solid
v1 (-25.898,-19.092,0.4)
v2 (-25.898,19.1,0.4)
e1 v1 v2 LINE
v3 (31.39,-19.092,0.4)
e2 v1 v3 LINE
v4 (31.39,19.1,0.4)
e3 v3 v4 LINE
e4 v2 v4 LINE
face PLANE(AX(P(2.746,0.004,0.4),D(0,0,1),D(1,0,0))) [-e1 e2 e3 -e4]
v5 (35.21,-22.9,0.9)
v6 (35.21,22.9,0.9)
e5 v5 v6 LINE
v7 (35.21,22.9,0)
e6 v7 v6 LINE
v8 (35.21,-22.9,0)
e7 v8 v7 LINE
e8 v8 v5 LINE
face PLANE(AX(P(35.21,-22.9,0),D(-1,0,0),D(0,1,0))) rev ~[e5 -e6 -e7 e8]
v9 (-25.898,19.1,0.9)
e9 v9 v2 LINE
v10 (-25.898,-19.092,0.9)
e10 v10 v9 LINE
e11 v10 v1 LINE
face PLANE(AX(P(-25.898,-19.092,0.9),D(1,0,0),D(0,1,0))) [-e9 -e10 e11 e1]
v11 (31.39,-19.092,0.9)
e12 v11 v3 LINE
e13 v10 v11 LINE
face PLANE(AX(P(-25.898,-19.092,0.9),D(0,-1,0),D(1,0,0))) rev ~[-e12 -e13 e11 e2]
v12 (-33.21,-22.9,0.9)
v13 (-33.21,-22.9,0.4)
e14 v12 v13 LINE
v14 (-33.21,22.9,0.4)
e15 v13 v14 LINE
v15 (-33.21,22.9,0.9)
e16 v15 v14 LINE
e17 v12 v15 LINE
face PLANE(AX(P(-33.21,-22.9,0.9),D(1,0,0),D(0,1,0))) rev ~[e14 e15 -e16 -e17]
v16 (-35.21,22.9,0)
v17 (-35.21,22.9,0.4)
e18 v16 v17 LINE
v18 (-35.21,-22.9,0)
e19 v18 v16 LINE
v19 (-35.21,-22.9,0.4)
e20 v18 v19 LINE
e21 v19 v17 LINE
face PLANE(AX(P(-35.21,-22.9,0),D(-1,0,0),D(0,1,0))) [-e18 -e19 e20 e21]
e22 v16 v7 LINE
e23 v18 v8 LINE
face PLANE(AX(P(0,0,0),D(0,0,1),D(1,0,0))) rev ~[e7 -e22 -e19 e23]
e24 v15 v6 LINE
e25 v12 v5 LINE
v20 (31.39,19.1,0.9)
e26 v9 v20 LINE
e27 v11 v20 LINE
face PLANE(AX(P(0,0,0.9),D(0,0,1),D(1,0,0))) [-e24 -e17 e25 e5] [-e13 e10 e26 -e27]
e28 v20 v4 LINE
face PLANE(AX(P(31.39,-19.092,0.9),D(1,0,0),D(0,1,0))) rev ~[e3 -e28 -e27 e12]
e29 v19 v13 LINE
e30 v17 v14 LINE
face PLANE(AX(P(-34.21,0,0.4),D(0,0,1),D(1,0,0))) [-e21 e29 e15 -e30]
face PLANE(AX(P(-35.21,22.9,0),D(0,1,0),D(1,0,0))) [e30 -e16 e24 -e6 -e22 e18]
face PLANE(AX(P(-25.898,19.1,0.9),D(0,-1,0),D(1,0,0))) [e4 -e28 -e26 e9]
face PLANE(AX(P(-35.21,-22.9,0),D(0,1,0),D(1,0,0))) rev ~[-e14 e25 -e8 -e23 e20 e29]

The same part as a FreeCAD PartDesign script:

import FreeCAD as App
import Part
import Sketcher
from FreeCAD import Vector
Q = App.Units.Quantity


def add_polygon(sketch, points):
    """Adds a closed chain of lines whose ends are joined by coincident constraints."""
    first, n = sketch.GeometryCount, len(points)
    for a, b in zip(points, points[1:] + points[:1]):
        sketch.addGeometry(Part.LineSegment(App.Vector(*a, 0), App.Vector(*b, 0)), False)
    for i in range(n):
        sketch.addConstraint(Sketcher.Constraint("Coincident", first + i, 2, first + (i + 1) % n, 1))

doc = App.newDocument("Part")
body = doc.addObject("PartDesign::Body", "Body")

sketch1 = doc.addObject("Sketcher::SketchObject", "Sketch")
body.addObject(sketch1)
sketch1.AttachmentSupport = (doc.XY_Plane, [""])
sketch1.MapMode = "FlatFace"
add_polygon(sketch1, [(-35, 23), (-35, -23), (35, -23), (35, 23)])
sketch1.addConstraint([
    Sketcher.Constraint("Vertical", 0),
    Sketcher.Constraint("Horizontal", 1),
    Sketcher.Constraint("Vertical", 2),
    Sketcher.Constraint("Horizontal", 3),
    Sketcher.Constraint("Symmetric", 0, 2, 2, 2, -1, 1),
    Sketcher.Constraint("DistanceY", 0, 2, 0, 1, Q("45.8 mm")),
    Sketcher.Constraint("DistanceX", 1, 1, 1, 2, Q("70.42 mm")),
])
pad1 = doc.addObject("PartDesign::Pad", "Pad")
body.addObject(pad1)
pad1.Profile = sketch1
pad1.Length = 0.9

sketch2 = doc.addObject("Sketcher::SketchObject", "Sketch001")
body.addObject(sketch2)
sketch2.AttachmentSupport = (doc.XY_Plane, [""])
sketch2.MapMode = "FlatFace"
sketch2.AttachmentOffset = App.Placement(Vector(0, 0, 0.9), App.Rotation())
add_polygon(sketch2, [(-26, 19), (-26, -19), (31, -19), (31, 19)])
sketch2.addConstraint([
    Sketcher.Constraint("Vertical", 0),
    Sketcher.Constraint("Horizontal", 1),
    Sketcher.Constraint("Vertical", 2),
    Sketcher.Constraint("Horizontal", 3),
    Sketcher.Constraint("DistanceY", -1, 1, 2, 2, Q("19.1 mm")),
    Sketcher.Constraint("DistanceX", 1, 1, 1, 2, Q("57.288 mm")),
    Sketcher.Constraint("DistanceY", 0, 2, 0, 1, Q("38.192 mm")),
    Sketcher.Constraint("DistanceX", -1, 1, 1, 2, Q("31.39 mm")),
])
pocket1 = doc.addObject("PartDesign::Pocket", "Pocket")
body.addObject(pocket1)
pocket1.Profile = sketch2
pocket1.Length = 0.5

sketch3 = doc.addObject("Sketcher::SketchObject", "Sketch002")
body.addObject(sketch3)
sketch3.AttachmentSupport = (doc.XY_Plane, [""])
sketch3.MapMode = "FlatFace"
sketch3.AttachmentOffset = App.Placement(Vector(0, 0, 0.9), App.Rotation())
add_polygon(sketch3, [(-35.2, 22.9), (-35.2, -22.9), (-33.2, -22.9), (-33.2, 22.9)])
sketch3.addConstraint([
    Sketcher.Constraint("Vertical", 0),
    Sketcher.Constraint("Horizontal", 1),
    Sketcher.Constraint("Vertical", 2),
    Sketcher.Constraint("Horizontal", 3),
    Sketcher.Constraint("DistanceX", 1, 1, 1, 2, Q("2 mm")),
    Sketcher.Constraint("DistanceY", 0, 2, 0, 1, Q("45.8 mm")),
    Sketcher.Constraint("DistanceY", 0, 2, -1, 1, Q("22.9 mm")),
    Sketcher.Constraint("DistanceX", 0, 2, -1, 1, Q("35.21 mm")),
])
pocket2 = doc.addObject("PartDesign::Pocket", "Pocket001")
body.addObject(pocket2)
pocket2.Profile = sketch3
pocket2.Length = 0.5

doc.recompute()
